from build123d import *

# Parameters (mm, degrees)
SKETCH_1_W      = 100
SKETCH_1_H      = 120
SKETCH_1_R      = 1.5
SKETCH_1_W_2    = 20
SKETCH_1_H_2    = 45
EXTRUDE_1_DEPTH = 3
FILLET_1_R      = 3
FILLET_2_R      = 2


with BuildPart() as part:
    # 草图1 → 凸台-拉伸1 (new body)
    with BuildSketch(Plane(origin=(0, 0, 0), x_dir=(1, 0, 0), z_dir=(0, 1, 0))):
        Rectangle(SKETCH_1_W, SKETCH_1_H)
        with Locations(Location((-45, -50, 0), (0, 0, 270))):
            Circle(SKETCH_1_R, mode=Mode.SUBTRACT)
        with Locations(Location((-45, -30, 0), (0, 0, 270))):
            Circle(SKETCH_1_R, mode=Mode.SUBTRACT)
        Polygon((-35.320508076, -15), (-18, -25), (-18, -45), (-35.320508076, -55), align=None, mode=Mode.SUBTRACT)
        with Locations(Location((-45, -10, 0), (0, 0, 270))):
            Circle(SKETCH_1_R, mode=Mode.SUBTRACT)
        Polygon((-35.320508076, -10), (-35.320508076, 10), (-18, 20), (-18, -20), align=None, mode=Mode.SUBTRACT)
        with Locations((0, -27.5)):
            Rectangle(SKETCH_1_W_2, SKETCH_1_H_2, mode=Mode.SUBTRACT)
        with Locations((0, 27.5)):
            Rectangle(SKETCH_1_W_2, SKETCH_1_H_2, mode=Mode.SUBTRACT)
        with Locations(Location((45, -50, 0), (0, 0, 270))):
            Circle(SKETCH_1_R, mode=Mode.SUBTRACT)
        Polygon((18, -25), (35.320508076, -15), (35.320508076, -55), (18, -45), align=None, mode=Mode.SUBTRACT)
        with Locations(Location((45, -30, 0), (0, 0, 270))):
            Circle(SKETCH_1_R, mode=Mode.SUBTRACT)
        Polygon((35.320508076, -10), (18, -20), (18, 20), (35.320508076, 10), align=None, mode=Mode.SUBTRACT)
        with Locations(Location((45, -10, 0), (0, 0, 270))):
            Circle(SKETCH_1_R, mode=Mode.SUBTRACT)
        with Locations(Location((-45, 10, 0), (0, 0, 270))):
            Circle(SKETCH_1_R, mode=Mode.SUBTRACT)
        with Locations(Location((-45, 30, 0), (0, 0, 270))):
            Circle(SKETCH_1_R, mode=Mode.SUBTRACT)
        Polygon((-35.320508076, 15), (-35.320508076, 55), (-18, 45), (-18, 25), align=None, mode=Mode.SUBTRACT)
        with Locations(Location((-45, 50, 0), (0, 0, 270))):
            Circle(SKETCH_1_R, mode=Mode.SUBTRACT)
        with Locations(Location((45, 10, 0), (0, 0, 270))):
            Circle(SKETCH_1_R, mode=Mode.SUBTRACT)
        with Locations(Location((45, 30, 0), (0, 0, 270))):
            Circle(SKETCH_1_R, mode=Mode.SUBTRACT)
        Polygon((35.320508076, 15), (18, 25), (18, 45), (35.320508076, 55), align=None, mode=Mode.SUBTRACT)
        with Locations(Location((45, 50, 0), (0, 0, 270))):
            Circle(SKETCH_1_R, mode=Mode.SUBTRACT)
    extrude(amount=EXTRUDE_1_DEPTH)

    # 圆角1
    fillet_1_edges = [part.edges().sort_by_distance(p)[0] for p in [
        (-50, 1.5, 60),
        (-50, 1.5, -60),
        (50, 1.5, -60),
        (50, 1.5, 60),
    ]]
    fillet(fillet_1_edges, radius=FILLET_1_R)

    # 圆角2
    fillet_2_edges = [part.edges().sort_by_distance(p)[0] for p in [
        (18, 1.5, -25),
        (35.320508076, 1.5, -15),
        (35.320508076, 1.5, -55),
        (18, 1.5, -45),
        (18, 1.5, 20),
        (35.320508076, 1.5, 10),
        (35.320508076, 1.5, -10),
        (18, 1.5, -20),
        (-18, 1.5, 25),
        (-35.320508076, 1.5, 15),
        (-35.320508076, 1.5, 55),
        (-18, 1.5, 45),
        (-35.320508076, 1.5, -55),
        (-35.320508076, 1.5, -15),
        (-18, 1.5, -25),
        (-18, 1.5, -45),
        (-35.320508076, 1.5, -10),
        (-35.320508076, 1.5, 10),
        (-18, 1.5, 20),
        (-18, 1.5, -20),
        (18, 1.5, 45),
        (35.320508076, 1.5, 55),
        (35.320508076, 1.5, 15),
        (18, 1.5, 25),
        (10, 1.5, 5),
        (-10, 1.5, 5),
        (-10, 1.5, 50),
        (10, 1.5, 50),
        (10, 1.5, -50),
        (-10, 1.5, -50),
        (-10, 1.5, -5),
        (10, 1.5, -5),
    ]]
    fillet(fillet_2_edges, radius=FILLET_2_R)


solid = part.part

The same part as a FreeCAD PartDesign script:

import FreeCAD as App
import Part
import Sketcher
from FreeCAD import Vector
Q = App.Units.Quantity


def edges_at(feature, points):
    """Names of the edges that pass closest to the given points."""
    edges = feature.Shape.Edges
    near = lambda p: min(range(len(edges)), key=lambda i: edges[i].distToShape(Part.Vertex(*p))[0])
    return sorted({f"Edge{near(p) + 1}" for p in points})

doc = App.newDocument("Part")
body = doc.addObject("PartDesign::Body", "Body")

# Sketch on XZ plane
sketch1 = doc.addObject("Sketcher::SketchObject", "Sketch")
body.addObject(sketch1)
sketch1.AttachmentSupport = (doc.XZ_Plane, [""])
sketch1.MapMode = "FlatFace"
sketch1.addGeometry([
    Part.LineSegment(Vector(-50, -60, 0), Vector(-50, 60, 0)),  # 0
    Part.LineSegment(Vector(-50, 60, 0), Vector(50, 60, 0)),  # 1
    Part.LineSegment(Vector(50, 60, 0), Vector(50, -60, 0)),  # 2
    Part.LineSegment(Vector(50, -60, 0), Vector(-50, -60, 0)),  # 3
    Part.Circle(Vector(-45, 50, 0), Vector(0, 0, 1), 1.5),  # 4
    Part.Circle(Vector(-45, 30, 0), Vector(0, 0, 1), 1.5),  # 5
    Part.LineSegment(Vector(-35.3, 55, 0), Vector(-35.3, 15, 0)),  # 6
    Part.LineSegment(Vector(-35.3, 15, 0), Vector(-18, 25, 0)),  # 7
    Part.LineSegment(Vector(-18, 25, 0), Vector(-18, 45, 0)),  # 8
    Part.LineSegment(Vector(-18, 45, 0), Vector(-35.3, 55, 0)),  # 9
    Part.Circle(Vector(-45, 10, 0), Vector(0, 0, 1), 1.5),  # 10
    Part.Circle(Vector(45, 50, 0), Vector(0, 0, 1), 1.5),  # 11
    Part.LineSegment(Vector(18, 45, 0), Vector(18, 25, 0)),  # 12
    Part.LineSegment(Vector(18, 25, 0), Vector(35.3, 15, 0)),  # 13
    Part.LineSegment(Vector(35.3, 15, 0), Vector(35.3, 55, 0)),  # 14
    Part.LineSegment(Vector(35.3, 55, 0), Vector(18, 45, 0)),  # 15
    Part.Circle(Vector(45, 30, 0), Vector(0, 0, 1), 1.5),  # 16
    Part.LineSegment(Vector(10, 50, 0), Vector(-10, 50, 0)),  # 17
    Part.LineSegment(Vector(-10, 50, 0), Vector(-10, 5, 0)),  # 18
    Part.LineSegment(Vector(-10, 5, 0), Vector(10, 5, 0)),  # 19
    Part.LineSegment(Vector(10, 5, 0), Vector(10, 50, 0)),  # 20
    Part.Circle(Vector(45, 10, 0), Vector(0, 0, 1), 1.5),  # 21
    Part.Circle(Vector(-45, -10, 0), Vector(0, 0, 1), 1.5),  # 22
    Part.LineSegment(Vector(-18, 20, 0), Vector(-35.3, 10, 0)),  # 23
    Part.LineSegment(Vector(-35.3, 10, 0), Vector(-35.3, -10, 0)),  # 24
    Part.LineSegment(Vector(-35.3, -10, 0), Vector(-18, -20, 0)),  # 25
    Part.LineSegment(Vector(-18, -20, 0), Vector(-18, 20, 0)),  # 26
    Part.Circle(Vector(-45, -30, 0), Vector(0, 0, 1), 1.5),  # 27
    Part.LineSegment(Vector(-18, -25, 0), Vector(-35.3, -15, 0)),  # 28
    Part.LineSegment(Vector(-35.3, -15, 0), Vector(-35.3, -55, 0)),  # 29
    Part.LineSegment(Vector(-35.3, -55, 0), Vector(-18, -45, 0)),  # 30
    Part.LineSegment(Vector(-18, -45, 0), Vector(-18, -25, 0)),  # 31
    Part.Circle(Vector(-45, -50, 0), Vector(0, 0, 1), 1.5),  # 32
    Part.LineSegment(Vector(35.3, -10, 0), Vector(35.3, 10, 0)),  # 33
    Part.LineSegment(Vector(35.3, 10, 0), Vector(18, 20, 0)),  # 34
    Part.LineSegment(Vector(18, 20, 0), Vector(18, -20, 0)),  # 35
    Part.LineSegment(Vector(18, -20, 0), Vector(35.3, -10, 0)),  # 36
    Part.Circle(Vector(45, -10, 0), Vector(0, 0, 1), 1.5),  # 37
    Part.LineSegment(Vector(10, -5, 0), Vector(-10, -5, 0)),  # 38
    Part.LineSegment(Vector(-10, -5, 0), Vector(-10, -50, 0)),  # 39
    Part.LineSegment(Vector(-10, -50, 0), Vector(10, -50, 0)),  # 40
    Part.LineSegment(Vector(10, -50, 0), Vector(10, -5, 0)),  # 41
    Part.LineSegment(Vector(35.3, -55, 0), Vector(35.3, -15, 0)),  # 42
    Part.LineSegment(Vector(35.3, -15, 0), Vector(18, -25, 0)),  # 43
    Part.LineSegment(Vector(18, -25, 0), Vector(18, -45, 0)),  # 44
    Part.LineSegment(Vector(18, -45, 0), Vector(35.3, -55, 0)),  # 45
    Part.Circle(Vector(45, -30, 0), Vector(0, 0, 1), 1.5),  # 46
    Part.Circle(Vector(45, -50, 0), Vector(0, 0, 1), 1.5),  # 47
], False)
sketch1.addConstraint([
    Sketcher.Constraint("Coincident", 0, 2, 1, 1),
    Sketcher.Constraint("Coincident", 1, 2, 2, 1),
    Sketcher.Constraint("Coincident", 2, 2, 3, 1),
    Sketcher.Constraint("Coincident", 3, 2, 0, 1),
    Sketcher.Constraint("Coincident", 6, 2, 7, 1),
    Sketcher.Constraint("Coincident", 7, 2, 8, 1),
    Sketcher.Constraint("Coincident", 8, 2, 9, 1),
    Sketcher.Constraint("Coincident", 9, 2, 6, 1),
    Sketcher.Constraint("Coincident", 12, 2, 13, 1),
    Sketcher.Constraint("Coincident", 13, 2, 14, 1),
    Sketcher.Constraint("Coincident", 14, 2, 15, 1),
    Sketcher.Constraint("Coincident", 15, 2, 12, 1),
    Sketcher.Constraint("Coincident", 17, 2, 18, 1),
    Sketcher.Constraint("Coincident", 18, 2, 19, 1),
    Sketcher.Constraint("Coincident", 19, 2, 20, 1),
    Sketcher.Constraint("Coincident", 20, 2, 17, 1),
    Sketcher.Constraint("Coincident", 23, 2, 24, 1),
    Sketcher.Constraint("Coincident", 24, 2, 25, 1),
    Sketcher.Constraint("Coincident", 25, 2, 26, 1),
    Sketcher.Constraint("Coincident", 26, 2, 23, 1),
    Sketcher.Constraint("Coincident", 28, 2, 29, 1),
    Sketcher.Constraint("Coincident", 29, 2, 30, 1),
    Sketcher.Constraint("Coincident", 30, 2, 31, 1),
    Sketcher.Constraint("Coincident", 31, 2, 28, 1),
    Sketcher.Constraint("Coincident", 33, 2, 34, 1),
    Sketcher.Constraint("Coincident", 34, 2, 35, 1),
    Sketcher.Constraint("Coincident", 35, 2, 36, 1),
    Sketcher.Constraint("Coincident", 36, 2, 33, 1),
    Sketcher.Constraint("Coincident", 38, 2, 39, 1),
    Sketcher.Constraint("Coincident", 39, 2, 40, 1),
    Sketcher.Constraint("Coincident", 40, 2, 41, 1),
    Sketcher.Constraint("Coincident", 41, 2, 38, 1),
    Sketcher.Constraint("Coincident", 42, 2, 43, 1),
    Sketcher.Constraint("Coincident", 43, 2, 44, 1),
    Sketcher.Constraint("Coincident", 44, 2, 45, 1),
    Sketcher.Constraint("Coincident", 45, 2, 42, 1),
    Sketcher.Constraint("Vertical", 0),
    Sketcher.Constraint("Horizontal", 1),
    Sketcher.Constraint("Vertical", 2),
    Sketcher.Constraint("Horizontal", 3),
    Sketcher.Constraint("Vertical", 6),
    Sketcher.Constraint("Vertical", 8),
    Sketcher.Constraint("Vertical", 12),
    Sketcher.Constraint("Vertical", 14),
    Sketcher.Constraint("Horizontal", 17),
    Sketcher.Constraint("Vertical", 18),
    Sketcher.Constraint("Horizontal", 19),
    Sketcher.Constraint("Vertical", 20),
    Sketcher.Constraint("Vertical", 24),
    Sketcher.Constraint("Vertical", 26),
    Sketcher.Constraint("Vertical", 29),
    Sketcher.Constraint("Vertical", 31),
    Sketcher.Constraint("Vertical", 33),
    Sketcher.Constraint("Vertical", 35),
    Sketcher.Constraint("Horizontal", 38),
    Sketcher.Constraint("Vertical", 39),
    Sketcher.Constraint("Horizontal", 40),
    Sketcher.Constraint("Vertical", 41),
    Sketcher.Constraint("Vertical", 42),
    Sketcher.Constraint("Vertical", 44),
    Sketcher.Constraint("Equal", 4, 5),
    Sketcher.Constraint("Equal", 5, 10),
    Sketcher.Constraint("Equal", 10, 11),
    Sketcher.Constraint("Equal", 11, 16),
    Sketcher.Constraint("Equal", 16, 21),
    Sketcher.Constraint("Equal", 21, 22),
    Sketcher.Constraint("Equal", 22, 27),
    Sketcher.Constraint("Equal", 27, 32),
    Sketcher.Constraint("Equal", 32, 37),
    Sketcher.Constraint("Equal", 37, 46),
    Sketcher.Constraint("Equal", 46, 47),
    Sketcher.Constraint("Symmetric", 21, 3, 22, 3, -1, 1),
    Sketcher.Constraint("Symmetric", 16, 3, 27, 3, -1, 1),
    Sketcher.Constraint("Symmetric", 11, 3, 32, 3, -1, 1),
    Sketcher.Constraint("Symmetric", 10, 3, 37, 3, -1, 1),
    Sketcher.Constraint("Symmetric", 5, 3, 46, 3, -1, 1),
    Sketcher.Constraint("Symmetric", 4, 3, 47, 3, -1, 1),
    Sketcher.Constraint("Symmetric", 0, 2, 2, 2, -1, 1),
    Sketcher.Constraint("Symmetric", 13, 2, 28, 2, -1, 1),
    Sketcher.Constraint("Symmetric", 15, 2, 30, 2, -1, 1),
    Sketcher.Constraint("Symmetric", 24, 2, 33, 2, -1, 1),
    Sketcher.Constraint("Symmetric", 25, 2, 34, 2, -1, 1),
    Sketcher.Constraint("Symmetric", 19, 2, 38, 2, -1, 1),
    Sketcher.Constraint("Symmetric", 17, 2, 40, 2, -1, 1),
    Sketcher.Constraint("Symmetric", 6, 2, 42, 2, -1, 1),
    Sketcher.Constraint("Symmetric", 7, 2, 43, 2, -1, 1),
    Sketcher.Constraint("Symmetric", 4, 3, 11, 3, -2),
    Sketcher.Constraint("Symmetric", 5, 3, 16, 3, -2),
    Sketcher.Constraint("Symmetric", 10, 3, 21, 3, -2),
    Sketcher.Constraint("Symmetric", 7, 2, 12, 2, -2),
    Sketcher.Constraint("Symmetric", 6, 2, 13, 2, -2),
    Sketcher.Constraint("Parallel", 9, 13),
    Sketcher.Constraint("Parallel", 7, 15),
    Sketcher.Constraint("Parallel", 15, 23),
    Sketcher.Constraint("Parallel", 13, 25),
    Sketcher.Constraint("Parallel", 25, 28),
    Sketcher.Constraint("Parallel", 23, 30),
    Sketcher.Constraint("Parallel", 30, 36),
    Sketcher.Constraint("Parallel", 34, 45),
    Sketcher.Constraint("Horizontal", 9, 2, 14, 2),
    Sketcher.Constraint("Horizontal", 11, 3, 17, 2),
    Sketcher.Constraint("Horizontal", 21, 3, 23, 2),
    Sketcher.Constraint("Horizontal", 37, 3, 24, 2),
    Sketcher.Constraint("Horizontal", 25, 2, 35, 2),
    Sketcher.Constraint("Horizontal", 30, 2, 44, 2),
    Sketcher.Constraint("Vertical", 4, 3, 5, 3),
    Sketcher.Constraint("Vertical", 5, 3, 10, 3),
    Sketcher.Constraint("Vertical", 9, 2, 23, 2),
    Sketcher.Constraint("Vertical", 8, 2, 25, 2),
    Sketcher.Constraint("Vertical", 18, 2, 38, 2),
    Sketcher.Constraint("Equal", 40, 8),
    Sketcher.Constraint("Equal", 12, 24),
    Sketcher.Constraint("Diameter", 4, 3.0),
    Sketcher.Constraint("DistanceX", 1, 1, 1, 2, 100.0),
    Sketcher.Constraint("DistanceX", 17, 2, 17, 1, 20.0),
    Sketcher.Constraint("DistanceY", 0, 1, 0, 2, 120.0),
    Sketcher.Constraint("DistanceY", 6, 2, 6, 1, 40.0),
    Sketcher.Constraint("DistanceY", 18, 2, 18, 1, 45.0),
    Sketcher.Constraint("Angle", 7, Q("30 deg")),
    Sketcher.Constraint("DistanceX", 4, 3, -1, 1, 45.0),
    Sketcher.Constraint("DistanceY", -1, 1, 4, 3, 50.0),
    Sketcher.Constraint("DistanceY", -1, 1, 5, 3, 30.0),
    Sketcher.Constraint("DistanceY", -1, 1, 6, 2, 15.0),
    Sketcher.Constraint("DistanceX", 7, 2, -1, 1, 18.0),
])
pad1 = doc.addObject("PartDesign::Pad", "Pad")
body.addObject(pad1)
pad1.Profile = sketch1
pad1.Length = 3
pad1.Reversed = True
doc.recompute()

fillet = doc.addObject("PartDesign::Fillet", "Fillet")
body.addObject(fillet)
fillet.Base = (pad1, edges_at(pad1, [
    (-50, 1.5, 60),
    (-50, 1.5, -60),
    (50, 1.5, -60),
    (50, 1.5, 60),
]))
fillet.Radius = 3
doc.recompute()

fillet2 = doc.addObject("PartDesign::Fillet", "Fillet001")
body.addObject(fillet2)
fillet2.Base = (fillet, edges_at(fillet, [
    (18, 1.5, -25),
    (35.321, 1.5, -15),
    (35.321, 1.5, -55),
    (18, 1.5, -45),
    (18, 1.5, 20),
    (35.321, 1.5, 10),
    (35.321, 1.5, -10),
    (18, 1.5, -20),
    (-18, 1.5, 25),
    (-35.321, 1.5, 15),
    (-35.321, 1.5, 55),
    (-18, 1.5, 45),
    (-35.321, 1.5, -55),
    (-35.321, 1.5, -15),
    (-18, 1.5, -25),
    (-18, 1.5, -45),
    (-35.321, 1.5, -10),
    (-35.321, 1.5, 10),
    (-18, 1.5, 20),
    (-18, 1.5, -20),
    (18, 1.5, 45),
    (35.321, 1.5, 55),
    (35.321, 1.5, 15),
    (18, 1.5, 25),
    (10, 1.5, 5),
    (-10, 1.5, 5),
    (-10, 1.5, 50),
    (10, 1.5, 50),
    (10, 1.5, -50),
    (-10, 1.5, -50),
    (-10, 1.5, -5),
    (10, 1.5, -5),
]))
fillet2.Radius = 2

doc.recompute()
